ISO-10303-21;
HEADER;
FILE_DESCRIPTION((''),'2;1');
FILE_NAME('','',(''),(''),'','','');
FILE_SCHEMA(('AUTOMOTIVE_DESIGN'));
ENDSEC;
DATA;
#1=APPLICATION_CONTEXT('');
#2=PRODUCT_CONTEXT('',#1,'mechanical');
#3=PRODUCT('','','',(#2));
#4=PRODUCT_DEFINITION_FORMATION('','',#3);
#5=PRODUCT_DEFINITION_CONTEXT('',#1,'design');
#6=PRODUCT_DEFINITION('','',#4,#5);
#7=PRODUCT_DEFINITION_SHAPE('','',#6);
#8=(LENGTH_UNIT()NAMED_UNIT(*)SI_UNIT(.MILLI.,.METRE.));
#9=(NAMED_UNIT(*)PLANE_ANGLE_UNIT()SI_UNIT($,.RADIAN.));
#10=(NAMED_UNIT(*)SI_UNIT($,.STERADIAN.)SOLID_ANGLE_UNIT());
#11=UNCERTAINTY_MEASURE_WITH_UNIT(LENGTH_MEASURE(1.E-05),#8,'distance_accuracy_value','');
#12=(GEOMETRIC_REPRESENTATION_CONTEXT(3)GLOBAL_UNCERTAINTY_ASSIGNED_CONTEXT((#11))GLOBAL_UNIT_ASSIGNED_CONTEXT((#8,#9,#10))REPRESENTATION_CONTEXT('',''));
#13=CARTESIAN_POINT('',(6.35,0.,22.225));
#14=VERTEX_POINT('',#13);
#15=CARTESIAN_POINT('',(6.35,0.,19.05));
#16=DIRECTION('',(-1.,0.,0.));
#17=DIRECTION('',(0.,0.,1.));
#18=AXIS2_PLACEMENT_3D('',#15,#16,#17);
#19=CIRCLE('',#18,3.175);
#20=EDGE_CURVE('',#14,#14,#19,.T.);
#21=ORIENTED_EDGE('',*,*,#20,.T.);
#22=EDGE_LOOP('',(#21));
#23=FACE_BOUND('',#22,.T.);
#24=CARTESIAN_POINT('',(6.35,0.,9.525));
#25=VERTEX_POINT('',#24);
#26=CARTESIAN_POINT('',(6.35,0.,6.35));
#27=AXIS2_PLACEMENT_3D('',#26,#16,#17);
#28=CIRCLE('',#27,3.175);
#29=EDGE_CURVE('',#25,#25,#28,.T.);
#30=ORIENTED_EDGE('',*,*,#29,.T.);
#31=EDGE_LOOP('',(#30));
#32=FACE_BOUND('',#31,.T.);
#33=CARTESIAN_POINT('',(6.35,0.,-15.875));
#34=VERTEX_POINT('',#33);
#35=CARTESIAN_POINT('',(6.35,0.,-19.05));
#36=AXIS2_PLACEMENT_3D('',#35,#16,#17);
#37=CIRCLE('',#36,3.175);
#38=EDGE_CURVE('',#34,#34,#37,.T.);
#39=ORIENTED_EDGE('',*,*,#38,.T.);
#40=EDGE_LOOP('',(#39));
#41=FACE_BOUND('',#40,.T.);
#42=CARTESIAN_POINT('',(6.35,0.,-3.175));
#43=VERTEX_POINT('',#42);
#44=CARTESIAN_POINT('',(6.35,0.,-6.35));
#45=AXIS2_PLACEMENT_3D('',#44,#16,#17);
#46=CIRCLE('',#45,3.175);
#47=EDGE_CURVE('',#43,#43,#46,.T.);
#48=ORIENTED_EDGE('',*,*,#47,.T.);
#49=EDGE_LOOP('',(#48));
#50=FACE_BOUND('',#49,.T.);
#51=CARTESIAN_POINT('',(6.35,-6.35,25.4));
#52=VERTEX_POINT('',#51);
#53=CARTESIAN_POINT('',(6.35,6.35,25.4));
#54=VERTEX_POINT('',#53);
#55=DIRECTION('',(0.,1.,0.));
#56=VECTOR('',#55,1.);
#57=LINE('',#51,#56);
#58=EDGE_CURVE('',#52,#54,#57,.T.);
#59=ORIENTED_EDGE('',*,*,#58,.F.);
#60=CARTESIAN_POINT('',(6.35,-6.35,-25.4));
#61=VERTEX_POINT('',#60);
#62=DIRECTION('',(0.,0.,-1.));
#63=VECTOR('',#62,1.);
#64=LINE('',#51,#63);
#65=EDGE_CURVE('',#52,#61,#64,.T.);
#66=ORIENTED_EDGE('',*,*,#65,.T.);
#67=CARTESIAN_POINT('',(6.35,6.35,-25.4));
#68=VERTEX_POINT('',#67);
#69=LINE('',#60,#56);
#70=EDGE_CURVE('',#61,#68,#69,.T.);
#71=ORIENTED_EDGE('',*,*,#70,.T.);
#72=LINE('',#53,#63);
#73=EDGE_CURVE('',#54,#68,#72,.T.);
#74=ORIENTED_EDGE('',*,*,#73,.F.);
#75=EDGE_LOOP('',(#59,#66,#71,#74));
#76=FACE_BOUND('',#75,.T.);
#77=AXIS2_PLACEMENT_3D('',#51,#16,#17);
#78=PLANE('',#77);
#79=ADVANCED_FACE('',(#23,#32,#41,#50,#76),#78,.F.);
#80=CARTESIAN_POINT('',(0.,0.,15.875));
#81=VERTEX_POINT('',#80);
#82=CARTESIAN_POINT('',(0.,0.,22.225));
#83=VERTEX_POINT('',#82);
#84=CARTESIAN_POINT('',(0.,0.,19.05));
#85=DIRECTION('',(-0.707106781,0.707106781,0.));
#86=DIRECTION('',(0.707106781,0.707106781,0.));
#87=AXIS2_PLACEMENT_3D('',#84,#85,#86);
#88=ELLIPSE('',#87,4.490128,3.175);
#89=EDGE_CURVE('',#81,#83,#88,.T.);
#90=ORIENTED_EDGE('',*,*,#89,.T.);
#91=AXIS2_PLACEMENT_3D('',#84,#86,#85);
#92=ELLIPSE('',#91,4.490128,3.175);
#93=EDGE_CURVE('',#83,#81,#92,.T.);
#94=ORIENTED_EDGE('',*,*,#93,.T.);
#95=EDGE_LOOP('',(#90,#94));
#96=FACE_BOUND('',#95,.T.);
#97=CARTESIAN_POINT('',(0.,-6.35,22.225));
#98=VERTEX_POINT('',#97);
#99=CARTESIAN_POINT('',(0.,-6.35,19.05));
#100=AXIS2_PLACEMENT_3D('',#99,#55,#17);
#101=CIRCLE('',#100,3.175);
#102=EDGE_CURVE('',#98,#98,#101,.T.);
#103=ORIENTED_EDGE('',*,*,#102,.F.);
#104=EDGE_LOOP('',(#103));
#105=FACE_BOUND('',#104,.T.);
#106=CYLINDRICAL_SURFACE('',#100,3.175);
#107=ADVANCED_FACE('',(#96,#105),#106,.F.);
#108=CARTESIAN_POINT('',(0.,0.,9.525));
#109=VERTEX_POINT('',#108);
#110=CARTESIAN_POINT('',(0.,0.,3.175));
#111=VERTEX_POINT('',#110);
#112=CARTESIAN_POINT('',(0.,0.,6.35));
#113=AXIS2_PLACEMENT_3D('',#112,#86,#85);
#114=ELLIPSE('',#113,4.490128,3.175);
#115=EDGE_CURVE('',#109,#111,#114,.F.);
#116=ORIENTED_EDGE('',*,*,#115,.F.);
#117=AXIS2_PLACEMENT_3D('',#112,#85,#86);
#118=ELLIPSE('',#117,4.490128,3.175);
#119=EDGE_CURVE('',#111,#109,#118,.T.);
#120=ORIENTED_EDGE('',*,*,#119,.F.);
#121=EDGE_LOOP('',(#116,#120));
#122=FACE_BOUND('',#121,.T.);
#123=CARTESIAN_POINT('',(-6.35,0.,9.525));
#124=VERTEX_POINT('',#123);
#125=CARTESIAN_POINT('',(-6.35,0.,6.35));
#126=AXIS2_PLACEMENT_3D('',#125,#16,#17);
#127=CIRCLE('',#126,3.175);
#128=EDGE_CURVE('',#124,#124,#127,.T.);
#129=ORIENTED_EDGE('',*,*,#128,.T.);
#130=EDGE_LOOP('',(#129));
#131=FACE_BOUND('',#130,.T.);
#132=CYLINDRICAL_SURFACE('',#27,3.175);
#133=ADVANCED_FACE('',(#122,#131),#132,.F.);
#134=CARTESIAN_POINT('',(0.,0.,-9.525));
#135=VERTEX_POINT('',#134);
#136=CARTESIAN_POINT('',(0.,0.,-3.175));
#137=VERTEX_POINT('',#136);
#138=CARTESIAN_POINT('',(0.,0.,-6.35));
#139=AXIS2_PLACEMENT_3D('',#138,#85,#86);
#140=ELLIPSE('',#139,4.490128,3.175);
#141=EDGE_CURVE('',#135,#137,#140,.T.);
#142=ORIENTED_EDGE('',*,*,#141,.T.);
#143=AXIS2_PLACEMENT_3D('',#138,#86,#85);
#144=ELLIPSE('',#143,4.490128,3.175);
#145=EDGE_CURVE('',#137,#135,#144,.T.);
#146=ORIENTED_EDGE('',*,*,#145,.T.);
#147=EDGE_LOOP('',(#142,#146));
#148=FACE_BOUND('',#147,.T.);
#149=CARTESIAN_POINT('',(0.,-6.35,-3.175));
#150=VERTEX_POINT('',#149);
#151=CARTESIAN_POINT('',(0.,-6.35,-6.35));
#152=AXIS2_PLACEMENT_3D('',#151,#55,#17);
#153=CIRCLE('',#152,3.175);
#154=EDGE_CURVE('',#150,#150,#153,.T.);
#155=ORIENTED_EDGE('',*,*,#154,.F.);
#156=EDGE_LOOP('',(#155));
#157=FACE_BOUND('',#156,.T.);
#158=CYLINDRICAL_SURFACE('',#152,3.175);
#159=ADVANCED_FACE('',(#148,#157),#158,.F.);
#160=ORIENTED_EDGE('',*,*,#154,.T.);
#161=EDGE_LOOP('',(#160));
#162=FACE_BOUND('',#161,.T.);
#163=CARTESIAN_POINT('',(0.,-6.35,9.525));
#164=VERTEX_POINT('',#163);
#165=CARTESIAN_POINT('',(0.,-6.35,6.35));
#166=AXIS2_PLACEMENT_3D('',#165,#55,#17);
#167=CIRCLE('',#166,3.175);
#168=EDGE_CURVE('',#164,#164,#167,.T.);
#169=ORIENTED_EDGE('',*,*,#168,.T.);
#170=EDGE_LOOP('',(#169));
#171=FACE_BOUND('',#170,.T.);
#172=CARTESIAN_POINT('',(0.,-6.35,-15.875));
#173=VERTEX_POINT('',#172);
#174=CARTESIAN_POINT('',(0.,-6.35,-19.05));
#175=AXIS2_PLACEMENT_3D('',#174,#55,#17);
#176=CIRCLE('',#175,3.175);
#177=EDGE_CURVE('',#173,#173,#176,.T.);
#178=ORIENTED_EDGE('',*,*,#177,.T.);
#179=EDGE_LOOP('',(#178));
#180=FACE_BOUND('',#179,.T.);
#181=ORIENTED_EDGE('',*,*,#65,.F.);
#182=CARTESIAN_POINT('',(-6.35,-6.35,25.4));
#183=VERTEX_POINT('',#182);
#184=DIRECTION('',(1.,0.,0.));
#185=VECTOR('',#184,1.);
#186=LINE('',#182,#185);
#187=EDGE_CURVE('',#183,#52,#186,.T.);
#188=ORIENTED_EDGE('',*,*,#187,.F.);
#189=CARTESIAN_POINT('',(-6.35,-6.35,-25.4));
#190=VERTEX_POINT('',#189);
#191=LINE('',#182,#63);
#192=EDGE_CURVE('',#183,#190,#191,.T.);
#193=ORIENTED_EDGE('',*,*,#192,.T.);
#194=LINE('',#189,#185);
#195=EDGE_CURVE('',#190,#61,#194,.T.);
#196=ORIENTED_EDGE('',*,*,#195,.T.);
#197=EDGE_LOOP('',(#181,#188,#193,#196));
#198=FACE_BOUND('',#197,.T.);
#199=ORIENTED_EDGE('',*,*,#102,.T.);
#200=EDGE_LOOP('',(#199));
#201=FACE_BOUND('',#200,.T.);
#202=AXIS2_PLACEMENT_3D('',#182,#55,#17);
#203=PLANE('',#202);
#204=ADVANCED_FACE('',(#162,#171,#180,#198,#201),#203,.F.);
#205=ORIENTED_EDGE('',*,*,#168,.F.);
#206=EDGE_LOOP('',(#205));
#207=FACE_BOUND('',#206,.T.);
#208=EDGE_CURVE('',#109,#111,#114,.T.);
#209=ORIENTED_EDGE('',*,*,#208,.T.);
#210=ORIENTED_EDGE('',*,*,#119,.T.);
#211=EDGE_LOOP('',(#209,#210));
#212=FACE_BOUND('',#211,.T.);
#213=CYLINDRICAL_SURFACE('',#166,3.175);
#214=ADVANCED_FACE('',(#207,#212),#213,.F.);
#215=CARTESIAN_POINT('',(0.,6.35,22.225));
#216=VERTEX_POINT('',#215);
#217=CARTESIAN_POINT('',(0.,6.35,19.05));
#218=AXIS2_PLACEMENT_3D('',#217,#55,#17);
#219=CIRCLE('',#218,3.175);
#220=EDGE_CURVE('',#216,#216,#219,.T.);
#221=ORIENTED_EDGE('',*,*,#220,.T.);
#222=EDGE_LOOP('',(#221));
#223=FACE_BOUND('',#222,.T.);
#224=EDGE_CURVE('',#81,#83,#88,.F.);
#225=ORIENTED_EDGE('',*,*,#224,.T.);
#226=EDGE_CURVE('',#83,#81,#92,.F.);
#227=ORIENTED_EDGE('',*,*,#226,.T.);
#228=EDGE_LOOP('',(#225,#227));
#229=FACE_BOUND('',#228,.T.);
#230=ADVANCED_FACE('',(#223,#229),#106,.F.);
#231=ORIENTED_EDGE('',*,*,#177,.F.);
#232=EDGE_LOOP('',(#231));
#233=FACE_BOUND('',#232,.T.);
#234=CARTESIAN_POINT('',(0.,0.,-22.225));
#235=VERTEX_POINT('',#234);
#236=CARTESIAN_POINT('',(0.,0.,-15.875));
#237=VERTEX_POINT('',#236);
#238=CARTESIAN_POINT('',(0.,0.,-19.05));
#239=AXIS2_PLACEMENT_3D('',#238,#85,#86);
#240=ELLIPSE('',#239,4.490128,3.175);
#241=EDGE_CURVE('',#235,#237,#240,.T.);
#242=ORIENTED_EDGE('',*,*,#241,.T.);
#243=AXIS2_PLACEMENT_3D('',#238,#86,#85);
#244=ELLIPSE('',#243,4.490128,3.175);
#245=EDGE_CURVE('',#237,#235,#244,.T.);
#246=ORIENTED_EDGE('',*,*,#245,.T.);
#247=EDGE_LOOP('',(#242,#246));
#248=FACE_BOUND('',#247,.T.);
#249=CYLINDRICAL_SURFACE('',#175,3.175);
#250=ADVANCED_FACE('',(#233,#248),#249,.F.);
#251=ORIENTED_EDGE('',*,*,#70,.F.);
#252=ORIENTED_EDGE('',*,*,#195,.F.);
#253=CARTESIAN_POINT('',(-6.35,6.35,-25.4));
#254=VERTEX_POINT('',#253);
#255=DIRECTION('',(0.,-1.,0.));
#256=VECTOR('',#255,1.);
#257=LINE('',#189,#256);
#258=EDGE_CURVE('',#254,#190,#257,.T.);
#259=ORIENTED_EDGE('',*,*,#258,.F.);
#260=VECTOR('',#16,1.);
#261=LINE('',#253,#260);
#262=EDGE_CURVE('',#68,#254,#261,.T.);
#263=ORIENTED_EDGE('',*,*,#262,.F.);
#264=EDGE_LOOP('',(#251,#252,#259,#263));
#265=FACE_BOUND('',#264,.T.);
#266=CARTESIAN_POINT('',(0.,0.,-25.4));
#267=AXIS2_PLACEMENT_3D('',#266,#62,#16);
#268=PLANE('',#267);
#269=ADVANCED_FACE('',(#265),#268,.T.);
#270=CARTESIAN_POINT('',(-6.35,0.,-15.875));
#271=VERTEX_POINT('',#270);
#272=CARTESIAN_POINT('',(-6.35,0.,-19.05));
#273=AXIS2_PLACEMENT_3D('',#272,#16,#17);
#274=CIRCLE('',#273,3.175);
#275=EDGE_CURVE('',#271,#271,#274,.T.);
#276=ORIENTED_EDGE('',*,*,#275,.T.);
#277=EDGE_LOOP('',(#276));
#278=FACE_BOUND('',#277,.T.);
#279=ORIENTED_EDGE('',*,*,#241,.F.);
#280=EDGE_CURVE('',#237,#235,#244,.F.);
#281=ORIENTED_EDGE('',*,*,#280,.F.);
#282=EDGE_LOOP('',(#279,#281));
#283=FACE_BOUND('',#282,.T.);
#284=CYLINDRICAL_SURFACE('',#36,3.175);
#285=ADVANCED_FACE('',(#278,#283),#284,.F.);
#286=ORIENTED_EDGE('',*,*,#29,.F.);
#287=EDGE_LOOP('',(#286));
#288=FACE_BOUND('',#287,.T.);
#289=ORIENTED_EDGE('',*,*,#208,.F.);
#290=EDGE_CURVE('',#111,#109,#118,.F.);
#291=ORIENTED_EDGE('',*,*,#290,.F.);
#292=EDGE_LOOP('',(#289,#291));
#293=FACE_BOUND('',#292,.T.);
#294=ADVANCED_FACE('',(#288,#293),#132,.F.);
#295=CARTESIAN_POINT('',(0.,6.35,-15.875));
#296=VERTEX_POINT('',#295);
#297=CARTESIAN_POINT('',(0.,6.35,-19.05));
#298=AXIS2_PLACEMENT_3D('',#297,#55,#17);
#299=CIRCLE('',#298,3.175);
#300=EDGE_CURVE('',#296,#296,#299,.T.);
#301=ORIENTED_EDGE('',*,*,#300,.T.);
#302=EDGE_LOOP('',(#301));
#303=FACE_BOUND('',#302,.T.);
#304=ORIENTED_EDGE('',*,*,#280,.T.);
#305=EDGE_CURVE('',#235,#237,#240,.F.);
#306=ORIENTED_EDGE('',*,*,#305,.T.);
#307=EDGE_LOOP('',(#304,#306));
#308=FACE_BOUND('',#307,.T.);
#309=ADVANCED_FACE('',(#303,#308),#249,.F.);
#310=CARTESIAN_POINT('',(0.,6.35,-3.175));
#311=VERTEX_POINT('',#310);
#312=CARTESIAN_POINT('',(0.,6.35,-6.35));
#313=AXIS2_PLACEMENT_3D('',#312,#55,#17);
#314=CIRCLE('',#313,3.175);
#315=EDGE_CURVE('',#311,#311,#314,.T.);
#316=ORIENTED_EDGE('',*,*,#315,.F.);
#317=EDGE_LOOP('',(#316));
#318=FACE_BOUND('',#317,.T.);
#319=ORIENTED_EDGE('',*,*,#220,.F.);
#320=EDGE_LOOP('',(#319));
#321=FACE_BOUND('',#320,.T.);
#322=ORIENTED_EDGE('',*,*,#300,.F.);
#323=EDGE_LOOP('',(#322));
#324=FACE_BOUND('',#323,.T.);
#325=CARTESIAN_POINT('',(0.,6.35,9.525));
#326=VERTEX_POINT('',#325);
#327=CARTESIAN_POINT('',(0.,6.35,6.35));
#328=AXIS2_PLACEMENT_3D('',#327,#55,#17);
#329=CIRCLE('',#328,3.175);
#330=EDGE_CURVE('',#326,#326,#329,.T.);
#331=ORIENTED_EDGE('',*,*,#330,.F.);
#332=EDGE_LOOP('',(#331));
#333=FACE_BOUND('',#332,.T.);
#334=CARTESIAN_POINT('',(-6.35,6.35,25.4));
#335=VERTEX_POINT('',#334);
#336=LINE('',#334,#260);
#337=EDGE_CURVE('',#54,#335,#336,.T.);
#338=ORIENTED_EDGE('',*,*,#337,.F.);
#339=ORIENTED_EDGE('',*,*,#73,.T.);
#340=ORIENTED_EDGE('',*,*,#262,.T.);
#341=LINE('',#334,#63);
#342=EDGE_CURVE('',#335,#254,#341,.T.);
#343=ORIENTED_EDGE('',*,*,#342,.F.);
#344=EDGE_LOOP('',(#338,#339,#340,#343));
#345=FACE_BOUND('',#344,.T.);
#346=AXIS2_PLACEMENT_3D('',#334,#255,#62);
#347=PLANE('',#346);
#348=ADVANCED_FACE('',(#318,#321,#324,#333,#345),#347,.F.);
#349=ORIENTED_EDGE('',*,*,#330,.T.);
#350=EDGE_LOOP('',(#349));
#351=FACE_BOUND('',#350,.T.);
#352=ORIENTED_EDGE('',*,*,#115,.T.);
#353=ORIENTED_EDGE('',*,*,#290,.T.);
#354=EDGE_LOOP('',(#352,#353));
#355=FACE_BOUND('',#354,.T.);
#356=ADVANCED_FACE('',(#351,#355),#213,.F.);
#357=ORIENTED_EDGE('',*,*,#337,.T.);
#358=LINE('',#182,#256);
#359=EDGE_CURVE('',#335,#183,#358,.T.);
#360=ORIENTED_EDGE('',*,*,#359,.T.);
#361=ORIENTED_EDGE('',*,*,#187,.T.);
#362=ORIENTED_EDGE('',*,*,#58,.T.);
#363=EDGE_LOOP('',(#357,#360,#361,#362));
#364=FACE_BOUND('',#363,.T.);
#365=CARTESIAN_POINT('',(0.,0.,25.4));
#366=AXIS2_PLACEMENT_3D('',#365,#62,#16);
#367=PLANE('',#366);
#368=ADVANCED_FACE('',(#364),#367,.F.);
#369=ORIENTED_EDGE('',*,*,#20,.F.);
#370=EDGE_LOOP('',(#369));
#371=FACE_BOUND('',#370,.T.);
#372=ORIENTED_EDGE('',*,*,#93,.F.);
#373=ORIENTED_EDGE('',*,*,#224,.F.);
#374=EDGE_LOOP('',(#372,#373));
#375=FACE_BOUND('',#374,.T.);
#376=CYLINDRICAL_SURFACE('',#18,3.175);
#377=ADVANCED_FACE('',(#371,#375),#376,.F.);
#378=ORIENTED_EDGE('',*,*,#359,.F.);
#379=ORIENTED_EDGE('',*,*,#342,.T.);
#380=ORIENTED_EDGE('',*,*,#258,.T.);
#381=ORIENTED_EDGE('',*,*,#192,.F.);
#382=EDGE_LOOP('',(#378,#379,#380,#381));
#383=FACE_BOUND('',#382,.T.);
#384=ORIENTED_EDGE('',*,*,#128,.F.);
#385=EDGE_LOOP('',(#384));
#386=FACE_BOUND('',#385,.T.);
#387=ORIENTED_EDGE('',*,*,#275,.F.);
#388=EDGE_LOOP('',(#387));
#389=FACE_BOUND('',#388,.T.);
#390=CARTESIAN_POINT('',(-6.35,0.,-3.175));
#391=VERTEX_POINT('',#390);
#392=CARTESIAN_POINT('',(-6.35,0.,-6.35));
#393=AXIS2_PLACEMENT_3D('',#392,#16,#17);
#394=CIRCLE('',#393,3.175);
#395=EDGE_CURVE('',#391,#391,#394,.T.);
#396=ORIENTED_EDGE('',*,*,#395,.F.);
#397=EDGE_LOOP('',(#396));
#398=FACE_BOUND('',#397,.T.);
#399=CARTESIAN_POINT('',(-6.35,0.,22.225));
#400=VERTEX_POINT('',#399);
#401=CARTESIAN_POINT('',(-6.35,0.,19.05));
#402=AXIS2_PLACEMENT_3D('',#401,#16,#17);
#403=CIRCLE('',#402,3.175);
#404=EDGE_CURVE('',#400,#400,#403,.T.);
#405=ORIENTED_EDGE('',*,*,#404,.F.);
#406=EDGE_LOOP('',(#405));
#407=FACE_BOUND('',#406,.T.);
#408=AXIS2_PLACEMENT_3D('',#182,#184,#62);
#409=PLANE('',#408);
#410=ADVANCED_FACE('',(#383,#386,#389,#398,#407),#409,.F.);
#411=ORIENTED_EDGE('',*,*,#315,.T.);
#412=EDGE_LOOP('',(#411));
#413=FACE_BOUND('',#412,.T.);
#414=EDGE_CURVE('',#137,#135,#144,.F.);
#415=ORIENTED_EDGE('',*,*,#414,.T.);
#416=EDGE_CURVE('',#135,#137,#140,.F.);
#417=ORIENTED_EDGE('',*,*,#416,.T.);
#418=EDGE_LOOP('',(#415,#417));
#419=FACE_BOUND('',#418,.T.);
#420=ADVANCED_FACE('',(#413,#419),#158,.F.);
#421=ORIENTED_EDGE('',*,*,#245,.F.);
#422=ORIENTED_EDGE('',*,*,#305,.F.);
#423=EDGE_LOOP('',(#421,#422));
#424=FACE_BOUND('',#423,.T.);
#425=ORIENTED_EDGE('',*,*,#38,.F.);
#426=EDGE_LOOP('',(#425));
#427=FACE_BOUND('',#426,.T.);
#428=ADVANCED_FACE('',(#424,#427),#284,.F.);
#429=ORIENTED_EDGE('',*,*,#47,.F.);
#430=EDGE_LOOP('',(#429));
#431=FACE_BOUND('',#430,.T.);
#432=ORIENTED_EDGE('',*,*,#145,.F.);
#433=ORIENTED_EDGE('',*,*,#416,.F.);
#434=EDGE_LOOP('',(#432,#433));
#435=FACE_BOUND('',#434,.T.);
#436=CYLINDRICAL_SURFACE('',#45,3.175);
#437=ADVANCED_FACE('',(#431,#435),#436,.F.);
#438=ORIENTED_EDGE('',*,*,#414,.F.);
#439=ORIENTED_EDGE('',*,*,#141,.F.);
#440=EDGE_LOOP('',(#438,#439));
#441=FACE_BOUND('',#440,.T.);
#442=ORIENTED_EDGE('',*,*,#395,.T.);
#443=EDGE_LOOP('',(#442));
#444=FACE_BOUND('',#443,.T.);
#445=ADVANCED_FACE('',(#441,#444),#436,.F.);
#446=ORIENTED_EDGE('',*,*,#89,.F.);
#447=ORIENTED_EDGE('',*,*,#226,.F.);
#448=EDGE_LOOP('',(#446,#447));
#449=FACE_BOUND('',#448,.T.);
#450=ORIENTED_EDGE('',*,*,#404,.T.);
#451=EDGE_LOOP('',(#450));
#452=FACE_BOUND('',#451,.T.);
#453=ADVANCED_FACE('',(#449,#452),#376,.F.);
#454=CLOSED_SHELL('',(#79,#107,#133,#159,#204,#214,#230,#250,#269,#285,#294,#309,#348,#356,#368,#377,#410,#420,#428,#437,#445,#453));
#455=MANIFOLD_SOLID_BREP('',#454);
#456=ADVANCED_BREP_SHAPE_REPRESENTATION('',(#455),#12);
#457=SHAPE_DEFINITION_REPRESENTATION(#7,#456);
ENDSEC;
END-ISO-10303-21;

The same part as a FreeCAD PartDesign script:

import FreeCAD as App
import Part
import Sketcher

V = App.Vector
Q = App.Units.Quantity

doc = App.newDocument("Part")
body = doc.addObject("PartDesign::Body", "Body")

# Sketch on XY plane
sketch1 = body.newObject("Sketcher::SketchObject", "Sketch")
sketch1.AttachmentSupport = (doc.getObject("XY_Plane"), [""])
sketch1.MapMode = "FlatFace"
sketch1.addGeometry(Part.LineSegment(V(-6, 6, 0), V(-6, -6, 0)), False)
sketch1.addGeometry(Part.LineSegment(V(-6, -6, 0), V(6, -6, 0)), False)
sketch1.addGeometry(Part.LineSegment(V(6, -6, 0), V(6, 6, 0)), False)
sketch1.addGeometry(Part.LineSegment(V(6, 6, 0), V(-6, 6, 0)), False)
sketch1.addConstraint(Sketcher.Constraint("Coincident", 0, 2, 1, 1))
sketch1.addConstraint(Sketcher.Constraint("Coincident", 1, 2, 2, 1))
sketch1.addConstraint(Sketcher.Constraint("Coincident", 2, 2, 3, 1))
sketch1.addConstraint(Sketcher.Constraint("Coincident", 3, 2, 0, 1))
sketch1.addConstraint(Sketcher.Constraint("Vertical", 0))
sketch1.addConstraint(Sketcher.Constraint("Horizontal", 1))
sketch1.addConstraint(Sketcher.Constraint("Vertical", 2))
sketch1.addConstraint(Sketcher.Constraint("Horizontal", 3))
sketch1.addConstraint(Sketcher.Constraint("Symmetric", 0, 2, 2, 2, -1, 1))
sketch1.addConstraint(Sketcher.Constraint("Equal", 3, 0))
sketch1.addConstraint(Sketcher.Constraint("DistanceX", 1, 1, 1, 2, Q("0.5 in")))
pad1 = body.newObject("PartDesign::Pad", "Pad")
pad1.Profile = sketch1
pad1.Length = Q("2 in")
pad1.Midplane = True

# Sketch on XZ plane
sketch2 = body.newObject("Sketcher::SketchObject", "Sketch001")
sketch2.AttachmentSupport = (doc.getObject("XZ_Plane"), [""])
sketch2.MapMode = "FlatFace"
sketch2.AttachmentOffset = App.Placement(V(0, 0, -0.25 * 25.4), App.Rotation())
sketch2.addGeometry(Part.Circle(V(0, -19.1, 0), V(0, 0, 1), 3.2), False)
sketch2.addGeometry(Part.Circle(V(0, -6.3, 0), V(0, 0, 1), 3.2), False)
sketch2.addGeometry(Part.Circle(V(0, 6.3, 0), V(0, 0, 1), 3.2), False)
sketch2.addGeometry(Part.Circle(V(0, 19.1, 0), V(0, 0, 1), 3.2), False)
sketch2.addGeometry(Part.Circle(V(0, 31.8, 0), V(0, 0, 1), 3.2), False)
sketch2.addGeometry(Part.Circle(V(0, 44.5, 0), V(0, 0, 1), 3.2), False)
sketch2.addConstraint(Sketcher.Constraint("Equal", 0, 1))
sketch2.addConstraint(Sketcher.Constraint("Equal", 1, 2))
sketch2.addConstraint(Sketcher.Constraint("Equal", 2, 3))
sketch2.addConstraint(Sketcher.Constraint("Equal", 3, 4))
sketch2.addConstraint(Sketcher.Constraint("Equal", 4, 5))
sketch2.addConstraint(Sketcher.Constraint("Symmetric", 1, 3, 2, 3, -1, 1))
sketch2.addConstraint(Sketcher.Constraint("Symmetric", 0, 3, 3, 3, -1, 1))
sketch2.addConstraint(Sketcher.Constraint("PointOnObject", 0, 3, -2))
sketch2.addConstraint(Sketcher.Constraint("PointOnObject", 1, 3, -2))
sketch2.addConstraint(Sketcher.Constraint("PointOnObject", 4, 3, -2))
sketch2.addConstraint(Sketcher.Constraint("PointOnObject", 5, 3, -2))
sketch2.addConstraint(Sketcher.Constraint("Diameter", 0, Q("0.25 in")))
sketch2.addConstraint(Sketcher.Constraint("DistanceY", 0, 3, 2, 3, Q("1 in")))
sketch2.addConstraint(Sketcher.Constraint("DistanceY", 2, 3, 4, 3, Q("1 in")))
sketch2.addConstraint(Sketcher.Constraint("DistanceY", 3, 3, 5, 3, Q("1 in")))
sketch2.addConstraint(Sketcher.Constraint("DistanceY", 0, 3, 1, 3, Q("0.5 in")))
pocket1 = body.newObject("PartDesign::Pocket", "Pocket")
pocket1.Profile = sketch2
pocket1.Type = "ThroughAll"
pocket1.Reversed = True

# Sketch on YZ plane
sketch3 = body.newObject("Sketcher::SketchObject", "Sketch002")
sketch3.AttachmentSupport = (doc.getObject("YZ_Plane"), [""])
sketch3.MapMode = "FlatFace"
sketch3.AttachmentOffset = App.Placement(V(0, 0, -0.25 * 25.4), App.Rotation())
sketch3.addGeometry(Part.Circle(V(0, 19.1, 0), V(0, 0, 1), 3.2), False)
sketch3.addGeometry(Part.Circle(V(0, 6.3, 0), V(0, 0, 1), 3.2), False)
sketch3.addGeometry(Part.Circle(V(0, -6.3, 0), V(0, 0, 1), 3.2), False)
sketch3.addGeometry(Part.Circle(V(0, -19.1, 0), V(0, 0, 1), 3.2), False)
sketch3.addGeometry(Part.Circle(V(0, -31.8, 0), V(0, 0, 1), 3.2), False)
sketch3.addGeometry(Part.Circle(V(0, -44.5, 0), V(0, 0, 1), 3.2), False)
sketch3.addConstraint(Sketcher.Constraint("Equal", 0, 1))
sketch3.addConstraint(Sketcher.Constraint("Equal", 1, 2))
sketch3.addConstraint(Sketcher.Constraint("Equal", 2, 3))
sketch3.addConstraint(Sketcher.Constraint("Equal", 3, 4))
sketch3.addConstraint(Sketcher.Constraint("Equal", 4, 5))
sketch3.addConstraint(Sketcher.Constraint("Symmetric", 1, 3, 2, 3, -1, 1))
sketch3.addConstraint(Sketcher.Constraint("Symmetric", 0, 3, 3, 3, -1, 1))
sketch3.addConstraint(Sketcher.Constraint("PointOnObject", 0, 3, -2))
sketch3.addConstraint(Sketcher.Constraint("PointOnObject", 1, 3, -2))
sketch3.addConstraint(Sketcher.Constraint("PointOnObject", 4, 3, -2))
sketch3.addConstraint(Sketcher.Constraint("PointOnObject", 5, 3, -2))
sketch3.addConstraint(Sketcher.Constraint("Diameter", 0, Q("0.25 in")))
sketch3.addConstraint(Sketcher.Constraint("DistanceY", 2, 3, 0, 3, Q("1 in")))
sketch3.addConstraint(Sketcher.Constraint("DistanceY", 4, 3, 2, 3, Q("1 in")))
sketch3.addConstraint(Sketcher.Constraint("DistanceY", 5, 3, 3, 3, Q("1 in")))
sketch3.addConstraint(Sketcher.Constraint("DistanceY", 1, 3, 0, 3, Q("0.5 in")))
pocket2 = body.newObject("PartDesign::Pocket", "Pocket001")
pocket2.Profile = sketch3
pocket2.Type = "ThroughAll"
pocket2.Reversed = True

doc.recompute()
